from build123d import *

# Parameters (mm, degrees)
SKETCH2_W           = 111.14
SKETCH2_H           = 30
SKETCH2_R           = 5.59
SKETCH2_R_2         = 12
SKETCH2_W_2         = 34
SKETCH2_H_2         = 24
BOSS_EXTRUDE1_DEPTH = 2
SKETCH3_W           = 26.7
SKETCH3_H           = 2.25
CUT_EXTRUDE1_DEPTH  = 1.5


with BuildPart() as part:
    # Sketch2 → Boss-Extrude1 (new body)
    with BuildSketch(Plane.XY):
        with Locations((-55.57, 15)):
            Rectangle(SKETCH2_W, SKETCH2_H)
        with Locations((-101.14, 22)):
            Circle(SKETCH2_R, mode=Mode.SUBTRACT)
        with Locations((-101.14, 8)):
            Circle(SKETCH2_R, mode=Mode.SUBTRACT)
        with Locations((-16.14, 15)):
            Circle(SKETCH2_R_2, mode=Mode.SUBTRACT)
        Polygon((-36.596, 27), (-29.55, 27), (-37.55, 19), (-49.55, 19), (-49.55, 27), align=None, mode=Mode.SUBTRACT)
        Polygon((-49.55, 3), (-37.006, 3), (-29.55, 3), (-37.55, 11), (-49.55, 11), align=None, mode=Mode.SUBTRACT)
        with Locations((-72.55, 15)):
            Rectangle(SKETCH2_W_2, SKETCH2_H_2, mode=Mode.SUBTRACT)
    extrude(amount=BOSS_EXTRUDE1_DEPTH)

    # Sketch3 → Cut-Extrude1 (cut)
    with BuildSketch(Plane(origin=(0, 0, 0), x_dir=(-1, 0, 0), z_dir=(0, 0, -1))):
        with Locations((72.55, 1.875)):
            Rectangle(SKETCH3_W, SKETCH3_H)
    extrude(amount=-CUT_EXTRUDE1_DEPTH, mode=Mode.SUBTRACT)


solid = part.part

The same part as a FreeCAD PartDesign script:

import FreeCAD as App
import Part
import Sketcher


def add_polygon(sketch, points):
    """Adds a closed chain of lines whose ends are joined by coincident constraints."""
    first, n = sketch.GeometryCount, len(points)
    for a, b in zip(points, points[1:] + points[:1]):
        sketch.addGeometry(Part.LineSegment(App.Vector(*a, 0), App.Vector(*b, 0)), False)
    for i in range(n):
        sketch.addConstraint(Sketcher.Constraint("Coincident", first + i, 2, first + (i + 1) % n, 1))

doc = App.newDocument("Part")
body = doc.addObject("PartDesign::Body", "Body")

# Sketch on XY plane
sketch1 = body.newObject("Sketcher::SketchObject", "Sketch")
sketch1.AttachmentSupport = (doc.getObject("XY_Plane"), [""])
sketch1.MapMode = "FlatFace"
add_polygon(sketch1, [(-111, 30), (-111, 0), (0, 0), (0, 30)])  # lines 0-3
sketch1.addGeometry(Part.Circle(App.Vector(-101, 8, 0), App.Vector(0, 0, 1), 6), False)  # 4
add_polygon(sketch1, [(-30, 3), (-50, 3), (-50, 11), (-38, 11)])  # lines 5-8
add_polygon(sketch1, [(-56, 3), (-90, 3), (-90, 27), (-56, 27)])  # lines 9-12
sketch1.addGeometry(Part.Circle(App.Vector(-101, 22, 0), App.Vector(0, 0, 1), 6), False)  # 13
sketch1.addGeometry(Part.Circle(App.Vector(-16, 15, 0), App.Vector(0, 0, 1), 12), False)  # 14
add_polygon(sketch1, [(-50, 27), (-30, 27), (-38, 19), (-50, 19)])  # lines 15-18
sketch1.addConstraint(Sketcher.Constraint("Vertical", 0))
sketch1.addConstraint(Sketcher.Constraint("Horizontal", 1))
sketch1.addConstraint(Sketcher.Constraint("Vertical", 2))
sketch1.addConstraint(Sketcher.Constraint("Horizontal", 3))
sketch1.addConstraint(Sketcher.Constraint("Horizontal", 5))
sketch1.addConstraint(Sketcher.Constraint("Vertical", 6))
sketch1.addConstraint(Sketcher.Constraint("Horizontal", 7))
sketch1.addConstraint(Sketcher.Constraint("Horizontal", 9))
sketch1.addConstraint(Sketcher.Constraint("Vertical", 10))
sketch1.addConstraint(Sketcher.Constraint("Horizontal", 11))
sketch1.addConstraint(Sketcher.Constraint("Vertical", 12))
sketch1.addConstraint(Sketcher.Constraint("Horizontal", 15))
sketch1.addConstraint(Sketcher.Constraint("Horizontal", 17))
sketch1.addConstraint(Sketcher.Constraint("Vertical", 18))
sketch1.addConstraint(Sketcher.Constraint("Coincident", 1, 2, -1, 1))
sketch1.addConstraint(Sketcher.Constraint("Equal", 4, 13))
sketch1.addConstraint(Sketcher.Constraint("Perpendicular", 8, 16))
sketch1.addConstraint(Sketcher.Constraint("Horizontal", 8, 2, 9, 2))
sketch1.addConstraint(Sketcher.Constraint("Horizontal", 11, 2, 15, 2))
sketch1.addConstraint(Sketcher.Constraint("Vertical", 4, 3, 13, 3))
sketch1.addConstraint(Sketcher.Constraint("Vertical", 8, 2, 15, 2))
sketch1.addConstraint(Sketcher.Constraint("Vertical", 7, 2, 16, 2))
sketch1.addConstraint(Sketcher.Constraint("Vertical", 6, 2, 17, 2))
sketch1.addConstraint(Sketcher.Constraint("Equal", 6, 18))
sketch1.addConstraint(Sketcher.Constraint("Diameter", 14, 24.0))
sketch1.addConstraint(Sketcher.Constraint("Diameter", 4, 11.18))
sketch1.addConstraint(Sketcher.Constraint("DistanceX", 5, 2, 5, 1, 20.0))
sketch1.addConstraint(Sketcher.Constraint("DistanceX", 7, 1, 7, 2, 12.0))
sketch1.addConstraint(Sketcher.Constraint("DistanceX", 9, 2, 9, 1, 34.0))
sketch1.addConstraint(Sketcher.Constraint("DistanceY", 0, 2, 0, 1, 30.0))
sketch1.addConstraint(Sketcher.Constraint("DistanceY", 10, 1, 10, 2, 24.0))
sketch1.addConstraint(Sketcher.Constraint("DistanceY", -1, 1, 4, 3, 8.0))
sketch1.addConstraint(Sketcher.Constraint("DistanceY", -1, 1, 13, 3, 22.0))
sketch1.addConstraint(Sketcher.Constraint("DistanceY", -1, 1, 14, 3, 15.0))
sketch1.addConstraint(Sketcher.Constraint("DistanceY", -1, 1, 5, 2, 3.0))
sketch1.addConstraint(Sketcher.Constraint("DistanceX", 4, 3, 14, 3, 85.0))
sketch1.addConstraint(Sketcher.Constraint("DistanceX", 0, 2, 4, 3, 10.0))
sketch1.addConstraint(Sketcher.Constraint("DistanceX", 9, 2, 5, 2, 40.0))
sketch1.addConstraint(Sketcher.Constraint("DistanceX", 1, 1, 1, 2, 111.14))
sketch1.addConstraint(Sketcher.Constraint("DistanceX", 5, 2, -1, 1, 49.55))
pad1 = body.newObject("PartDesign::Pad", "Pad")
pad1.Profile = sketch1
pad1.Length = 2

# Sketch on XY plane
sketch2 = body.newObject("Sketcher::SketchObject", "Sketch001")
sketch2.AttachmentSupport = (doc.getObject("XY_Plane"), [""])
sketch2.MapMode = "FlatFace"
add_polygon(sketch2, [(-59.2, 3), (-59.2, 0.8), (-85.9, 0.8), (-85.9, 3)])  # lines 0-3
sketch2.addConstraint(Sketcher.Constraint("Vertical", 0))
sketch2.addConstraint(Sketcher.Constraint("Horizontal", 1))
sketch2.addConstraint(Sketcher.Constraint("Vertical", 2))
sketch2.addConstraint(Sketcher.Constraint("Horizontal", 3))
sketch2.addConstraint(Sketcher.Constraint("DistanceX", 1, 2, 1, 1, 26.7))
sketch2.addConstraint(Sketcher.Constraint("DistanceY", -1, 1, 2, 2, 3.0))
sketch2.addConstraint(Sketcher.Constraint("DistanceY", 0, 2, 0, 1, 2.25))
sketch2.addConstraint(Sketcher.Constraint("DistanceX", 0, 2, -1, 1, 59.2))
pocket1 = body.newObject("PartDesign::Pocket", "Pocket")
pocket1.Profile = sketch2
pocket1.Length = 1.5
pocket1.Reversed = True

doc.recompute()
